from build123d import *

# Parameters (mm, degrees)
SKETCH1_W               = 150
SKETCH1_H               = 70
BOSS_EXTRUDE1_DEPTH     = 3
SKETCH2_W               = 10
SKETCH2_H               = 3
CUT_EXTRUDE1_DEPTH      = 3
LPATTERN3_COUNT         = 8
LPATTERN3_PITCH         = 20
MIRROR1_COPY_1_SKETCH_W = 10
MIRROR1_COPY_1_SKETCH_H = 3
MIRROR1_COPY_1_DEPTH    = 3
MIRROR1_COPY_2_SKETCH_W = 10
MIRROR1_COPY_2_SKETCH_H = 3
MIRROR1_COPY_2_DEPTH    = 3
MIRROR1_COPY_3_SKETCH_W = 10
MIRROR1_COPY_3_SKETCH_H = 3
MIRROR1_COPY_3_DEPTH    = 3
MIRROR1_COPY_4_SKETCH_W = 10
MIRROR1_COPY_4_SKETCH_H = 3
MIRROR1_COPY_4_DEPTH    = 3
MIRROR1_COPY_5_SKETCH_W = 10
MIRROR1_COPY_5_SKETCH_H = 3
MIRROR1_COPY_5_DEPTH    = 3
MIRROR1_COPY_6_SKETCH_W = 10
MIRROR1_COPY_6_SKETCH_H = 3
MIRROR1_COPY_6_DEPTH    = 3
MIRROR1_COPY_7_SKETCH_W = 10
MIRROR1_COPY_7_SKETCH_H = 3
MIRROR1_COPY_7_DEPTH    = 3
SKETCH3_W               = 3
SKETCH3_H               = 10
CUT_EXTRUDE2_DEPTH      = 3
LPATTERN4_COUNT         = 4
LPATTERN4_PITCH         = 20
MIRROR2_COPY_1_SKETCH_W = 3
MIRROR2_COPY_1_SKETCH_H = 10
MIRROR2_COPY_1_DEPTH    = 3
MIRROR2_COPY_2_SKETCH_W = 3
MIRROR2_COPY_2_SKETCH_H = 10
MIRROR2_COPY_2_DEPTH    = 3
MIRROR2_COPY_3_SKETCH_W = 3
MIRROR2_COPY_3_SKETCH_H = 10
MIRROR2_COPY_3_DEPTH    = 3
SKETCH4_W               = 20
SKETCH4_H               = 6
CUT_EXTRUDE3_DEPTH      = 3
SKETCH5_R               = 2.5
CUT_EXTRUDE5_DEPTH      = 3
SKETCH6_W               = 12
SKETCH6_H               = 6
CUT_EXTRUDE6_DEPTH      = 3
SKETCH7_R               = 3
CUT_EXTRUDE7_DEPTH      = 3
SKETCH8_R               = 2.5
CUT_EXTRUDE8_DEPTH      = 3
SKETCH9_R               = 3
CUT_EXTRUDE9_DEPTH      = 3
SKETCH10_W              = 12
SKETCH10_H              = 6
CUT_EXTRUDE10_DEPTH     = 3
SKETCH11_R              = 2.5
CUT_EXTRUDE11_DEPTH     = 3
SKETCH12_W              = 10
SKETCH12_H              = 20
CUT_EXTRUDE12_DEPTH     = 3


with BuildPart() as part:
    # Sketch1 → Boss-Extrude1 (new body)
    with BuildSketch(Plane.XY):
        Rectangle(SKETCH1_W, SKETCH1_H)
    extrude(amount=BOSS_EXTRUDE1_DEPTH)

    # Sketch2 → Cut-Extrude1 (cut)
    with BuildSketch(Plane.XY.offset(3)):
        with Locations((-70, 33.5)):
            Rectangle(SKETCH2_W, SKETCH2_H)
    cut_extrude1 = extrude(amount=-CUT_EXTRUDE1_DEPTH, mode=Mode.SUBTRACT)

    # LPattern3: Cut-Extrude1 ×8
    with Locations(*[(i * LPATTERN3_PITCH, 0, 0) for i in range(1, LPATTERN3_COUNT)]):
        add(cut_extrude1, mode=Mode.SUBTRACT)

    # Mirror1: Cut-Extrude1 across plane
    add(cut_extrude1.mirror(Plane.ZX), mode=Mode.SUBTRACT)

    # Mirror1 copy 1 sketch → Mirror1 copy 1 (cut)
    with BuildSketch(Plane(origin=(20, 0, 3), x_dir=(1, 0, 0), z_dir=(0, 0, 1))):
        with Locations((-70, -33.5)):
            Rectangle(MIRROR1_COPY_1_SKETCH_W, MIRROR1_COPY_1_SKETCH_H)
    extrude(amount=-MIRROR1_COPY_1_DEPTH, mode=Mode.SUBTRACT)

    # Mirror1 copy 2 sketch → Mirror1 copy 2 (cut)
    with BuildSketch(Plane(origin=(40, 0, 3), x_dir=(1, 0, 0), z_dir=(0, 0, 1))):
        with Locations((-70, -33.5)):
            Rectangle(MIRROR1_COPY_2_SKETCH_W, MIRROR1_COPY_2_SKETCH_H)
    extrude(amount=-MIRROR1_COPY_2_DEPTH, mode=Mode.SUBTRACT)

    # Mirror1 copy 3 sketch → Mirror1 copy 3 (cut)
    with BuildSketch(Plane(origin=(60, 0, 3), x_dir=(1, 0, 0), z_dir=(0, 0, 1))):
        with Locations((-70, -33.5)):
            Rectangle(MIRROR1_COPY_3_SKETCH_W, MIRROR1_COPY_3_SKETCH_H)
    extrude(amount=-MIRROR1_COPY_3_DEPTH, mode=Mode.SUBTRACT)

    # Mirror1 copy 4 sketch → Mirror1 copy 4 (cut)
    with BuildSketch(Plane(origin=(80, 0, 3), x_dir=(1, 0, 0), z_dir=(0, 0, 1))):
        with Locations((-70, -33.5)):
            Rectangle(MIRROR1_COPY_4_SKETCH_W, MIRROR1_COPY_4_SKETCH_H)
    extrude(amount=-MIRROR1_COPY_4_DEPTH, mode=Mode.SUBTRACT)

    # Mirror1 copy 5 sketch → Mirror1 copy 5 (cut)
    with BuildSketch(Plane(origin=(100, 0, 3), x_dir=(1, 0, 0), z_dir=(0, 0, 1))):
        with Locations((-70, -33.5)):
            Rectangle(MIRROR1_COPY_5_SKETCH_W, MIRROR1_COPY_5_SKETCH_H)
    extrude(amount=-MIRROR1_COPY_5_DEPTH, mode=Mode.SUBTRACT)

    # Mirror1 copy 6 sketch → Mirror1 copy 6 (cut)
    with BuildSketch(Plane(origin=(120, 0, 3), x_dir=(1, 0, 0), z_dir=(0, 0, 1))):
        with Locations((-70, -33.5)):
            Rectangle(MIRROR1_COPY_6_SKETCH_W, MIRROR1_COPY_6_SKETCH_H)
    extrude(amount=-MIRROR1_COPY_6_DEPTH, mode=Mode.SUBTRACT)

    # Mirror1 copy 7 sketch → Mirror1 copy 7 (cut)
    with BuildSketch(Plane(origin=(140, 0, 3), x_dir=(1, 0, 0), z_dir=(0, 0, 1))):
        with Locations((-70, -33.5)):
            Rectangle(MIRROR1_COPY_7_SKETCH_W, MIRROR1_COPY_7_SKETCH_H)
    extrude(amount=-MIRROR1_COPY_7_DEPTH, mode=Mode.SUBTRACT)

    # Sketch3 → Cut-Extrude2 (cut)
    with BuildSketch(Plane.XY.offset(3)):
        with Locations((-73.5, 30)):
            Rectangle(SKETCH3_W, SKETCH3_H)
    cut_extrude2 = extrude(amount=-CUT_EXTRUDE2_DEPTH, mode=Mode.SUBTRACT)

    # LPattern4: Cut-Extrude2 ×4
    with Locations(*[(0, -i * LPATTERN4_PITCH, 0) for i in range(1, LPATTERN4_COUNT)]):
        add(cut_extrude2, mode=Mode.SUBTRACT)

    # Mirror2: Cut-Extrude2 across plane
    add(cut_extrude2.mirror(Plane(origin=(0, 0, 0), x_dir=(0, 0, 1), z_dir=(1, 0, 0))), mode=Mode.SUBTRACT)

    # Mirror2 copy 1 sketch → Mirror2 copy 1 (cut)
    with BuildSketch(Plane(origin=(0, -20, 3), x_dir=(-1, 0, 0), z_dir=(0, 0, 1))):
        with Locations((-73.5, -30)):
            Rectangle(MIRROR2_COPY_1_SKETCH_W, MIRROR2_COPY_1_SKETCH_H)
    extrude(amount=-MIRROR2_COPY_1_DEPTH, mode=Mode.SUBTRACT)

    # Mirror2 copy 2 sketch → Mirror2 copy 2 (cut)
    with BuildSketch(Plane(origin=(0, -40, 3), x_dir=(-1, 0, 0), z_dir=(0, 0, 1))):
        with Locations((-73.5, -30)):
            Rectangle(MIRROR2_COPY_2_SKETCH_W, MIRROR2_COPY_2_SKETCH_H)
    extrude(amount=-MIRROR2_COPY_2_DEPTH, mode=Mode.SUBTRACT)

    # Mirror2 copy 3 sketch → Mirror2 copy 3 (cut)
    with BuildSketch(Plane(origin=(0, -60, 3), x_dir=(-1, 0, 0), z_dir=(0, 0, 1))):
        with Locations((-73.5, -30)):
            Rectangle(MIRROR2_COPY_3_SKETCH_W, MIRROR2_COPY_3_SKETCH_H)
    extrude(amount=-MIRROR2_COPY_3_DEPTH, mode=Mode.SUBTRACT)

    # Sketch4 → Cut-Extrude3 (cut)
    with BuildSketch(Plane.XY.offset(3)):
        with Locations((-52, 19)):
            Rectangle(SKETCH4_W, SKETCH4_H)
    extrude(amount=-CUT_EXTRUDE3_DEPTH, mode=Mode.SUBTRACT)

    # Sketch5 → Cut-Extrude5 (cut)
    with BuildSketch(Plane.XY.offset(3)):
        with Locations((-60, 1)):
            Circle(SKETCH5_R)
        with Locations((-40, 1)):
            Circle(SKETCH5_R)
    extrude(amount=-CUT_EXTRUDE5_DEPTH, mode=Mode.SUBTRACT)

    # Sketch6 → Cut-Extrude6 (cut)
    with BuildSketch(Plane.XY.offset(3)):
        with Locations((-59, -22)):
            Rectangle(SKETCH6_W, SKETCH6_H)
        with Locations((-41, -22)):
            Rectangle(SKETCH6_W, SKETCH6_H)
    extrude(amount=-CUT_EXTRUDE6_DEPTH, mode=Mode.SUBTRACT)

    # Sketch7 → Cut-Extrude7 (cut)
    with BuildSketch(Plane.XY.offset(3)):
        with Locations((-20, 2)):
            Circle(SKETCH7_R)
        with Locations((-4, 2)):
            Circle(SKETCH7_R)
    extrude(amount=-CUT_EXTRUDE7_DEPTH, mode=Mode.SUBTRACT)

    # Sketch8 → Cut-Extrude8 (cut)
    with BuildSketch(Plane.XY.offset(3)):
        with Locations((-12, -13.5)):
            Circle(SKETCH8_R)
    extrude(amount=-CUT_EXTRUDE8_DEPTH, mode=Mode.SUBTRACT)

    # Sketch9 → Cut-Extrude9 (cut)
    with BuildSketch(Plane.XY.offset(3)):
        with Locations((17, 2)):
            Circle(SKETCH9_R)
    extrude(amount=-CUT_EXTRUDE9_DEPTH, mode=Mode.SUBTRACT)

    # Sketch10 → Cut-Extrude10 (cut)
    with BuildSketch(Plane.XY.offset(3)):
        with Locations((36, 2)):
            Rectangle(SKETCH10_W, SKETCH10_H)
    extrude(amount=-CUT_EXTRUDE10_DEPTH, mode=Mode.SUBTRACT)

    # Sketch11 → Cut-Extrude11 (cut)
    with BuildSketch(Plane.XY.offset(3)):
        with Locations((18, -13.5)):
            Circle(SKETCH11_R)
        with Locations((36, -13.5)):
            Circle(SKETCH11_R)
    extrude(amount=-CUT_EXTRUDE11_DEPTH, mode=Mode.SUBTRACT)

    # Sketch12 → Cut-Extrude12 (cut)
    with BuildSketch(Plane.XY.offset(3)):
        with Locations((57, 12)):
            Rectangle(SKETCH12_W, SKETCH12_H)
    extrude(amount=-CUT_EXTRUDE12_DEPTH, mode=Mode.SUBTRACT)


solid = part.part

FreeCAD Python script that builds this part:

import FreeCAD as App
import Part
import Sketcher
from FreeCAD import Vector
Q = App.Units.Quantity


def add_polygon(sketch, points):
    """Adds a closed chain of lines whose ends are joined by coincident constraints."""
    first, n = sketch.GeometryCount, len(points)
    for a, b in zip(points, points[1:] + points[:1]):
        sketch.addGeometry(Part.LineSegment(App.Vector(*a, 0), App.Vector(*b, 0)), False)
    for i in range(n):
        sketch.addConstraint(Sketcher.Constraint("Coincident", first + i, 2, first + (i + 1) % n, 1))

doc = App.newDocument("Part")
body = doc.addObject("PartDesign::Body", "Body")

# Sketch on XY plane
sketch1 = doc.addObject("Sketcher::SketchObject", "Sketch")
body.addObject(sketch1)
sketch1.AttachmentSupport = (doc.XY_Plane, [""])
sketch1.MapMode = "FlatFace"
add_polygon(sketch1, [(-75, 35), (-75, -35), (75, -35), (75, 35)])  # lines 0-3
sketch1.addConstraint([
    Sketcher.Constraint("Vertical", 0),
    Sketcher.Constraint("Horizontal", 1),
    Sketcher.Constraint("Vertical", 2),
    Sketcher.Constraint("Horizontal", 3),
    Sketcher.Constraint("Symmetric", 0, 2, 2, 2, -1, 1),
    Sketcher.Constraint("DistanceX", 1, 1, 1, 2, Q("150 mm")),
    Sketcher.Constraint("DistanceY", 0, 2, 0, 1, Q("70 mm")),
])
pad1 = doc.addObject("PartDesign::Pad", "Pad")
body.addObject(pad1)
pad1.Profile = sketch1
pad1.Length = 3

# Sketch on XY plane
sketch2 = doc.addObject("Sketcher::SketchObject", "Sketch001")
body.addObject(sketch2)
sketch2.AttachmentSupport = (doc.XY_Plane, [""])
sketch2.MapMode = "FlatFace"
sketch2.AttachmentOffset = App.Placement(Vector(0, 0, 3), App.Rotation())
add_polygon(sketch2, [(-75, 35), (-75, 32), (-65, 32), (-65, 35)])  # lines 0-3
sketch2.addConstraint([
    Sketcher.Constraint("Vertical", 0),
    Sketcher.Constraint("Horizontal", 1),
    Sketcher.Constraint("Vertical", 2),
    Sketcher.Constraint("Horizontal", 3),
    Sketcher.Constraint("DistanceX", 1, 1, 1, 2, Q("10 mm")),
    Sketcher.Constraint("DistanceY", 0, 2, 0, 1, Q("3 mm")),
    Sketcher.Constraint("DistanceX", 0, 2, -1, 1, Q("75 mm")),
    Sketcher.Constraint("DistanceY", -1, 1, 0, 2, Q("32 mm")),
])
pocket1 = doc.addObject("PartDesign::Pocket", "Pocket")
body.addObject(pocket1)
pocket1.Profile = sketch2
pocket1.Length = 3
doc.recompute()

linearpattern = doc.addObject("PartDesign::LinearPattern", "LinearPattern")
body.addObject(linearpattern)
linearpattern.Originals = [pocket1]
linearpattern.Direction = (doc.X_Axis, [""])
linearpattern.Mode = "offset"
linearpattern.Offset = 20
linearpattern.Occurrences = 8
body.Tip = linearpattern
doc.recompute()

mirrored = doc.addObject("PartDesign::Mirrored", "Mirrored")
body.addObject(mirrored)
mirrored.Originals = [pocket1]
mirrored.MirrorPlane = (doc.XZ_Plane, [""])
body.Tip = mirrored

# Sketch on XY plane
sketch3 = doc.addObject("Sketcher::SketchObject", "Sketch002")
body.addObject(sketch3)
sketch3.AttachmentSupport = (doc.XY_Plane, [""])
sketch3.MapMode = "FlatFace"
sketch3.AttachmentOffset = App.Placement(Vector(0, 0, 3), App.Rotation())
add_polygon(sketch3, [(-55, -32), (-55, -35), (-45, -35), (-45, -32)])  # lines 0-3
sketch3.addConstraint([
    Sketcher.Constraint("Vertical", 0),
    Sketcher.Constraint("Horizontal", 1),
    Sketcher.Constraint("Vertical", 2),
    Sketcher.Constraint("Horizontal", 3),
    Sketcher.Constraint("DistanceX", 1, 1, 1, 2, Q("10 mm")),
    Sketcher.Constraint("DistanceY", 0, 2, 0, 1, Q("3 mm")),
    Sketcher.Constraint("DistanceX", 0, 2, -1, 1, Q("55 mm")),
    Sketcher.Constraint("DistanceY", 0, 2, -1, 1, Q("35 mm")),
])
pocket2 = doc.addObject("PartDesign::Pocket", "Pocket001")
body.addObject(pocket2)
pocket2.Profile = sketch3
pocket2.Length = 3

# Sketch on XY plane
sketch4 = doc.addObject("Sketcher::SketchObject", "Sketch003")
body.addObject(sketch4)
sketch4.AttachmentSupport = (doc.XY_Plane, [""])
sketch4.MapMode = "FlatFace"
sketch4.AttachmentOffset = App.Placement(Vector(0, 0, 3), App.Rotation())
add_polygon(sketch4, [(-35, -32), (-35, -35), (-25, -35), (-25, -32)])  # lines 0-3
sketch4.addConstraint([
    Sketcher.Constraint("Vertical", 0),
    Sketcher.Constraint("Horizontal", 1),
    Sketcher.Constraint("Vertical", 2),
    Sketcher.Constraint("Horizontal", 3),
    Sketcher.Constraint("DistanceX", 1, 1, 1, 2, Q("10 mm")),
    Sketcher.Constraint("DistanceY", 0, 2, 0, 1, Q("3 mm")),
    Sketcher.Constraint("DistanceX", 0, 2, -1, 1, Q("35 mm")),
    Sketcher.Constraint("DistanceY", 0, 2, -1, 1, Q("35 mm")),
])
pocket3 = doc.addObject("PartDesign::Pocket", "Pocket002")
body.addObject(pocket3)
pocket3.Profile = sketch4
pocket3.Length = 3

# Sketch on XY plane
sketch5 = doc.addObject("Sketcher::SketchObject", "Sketch004")
body.addObject(sketch5)
sketch5.AttachmentSupport = (doc.XY_Plane, [""])
sketch5.MapMode = "FlatFace"
sketch5.AttachmentOffset = App.Placement(Vector(0, 0, 3), App.Rotation())
add_polygon(sketch5, [(-15, -32), (-15, -35), (-5, -35), (-5, -32)])  # lines 0-3
sketch5.addConstraint([
    Sketcher.Constraint("Vertical", 0),
    Sketcher.Constraint("Horizontal", 1),
    Sketcher.Constraint("Vertical", 2),
    Sketcher.Constraint("Horizontal", 3),
    Sketcher.Constraint("DistanceX", 1, 1, 1, 2, Q("10 mm")),
    Sketcher.Constraint("DistanceY", 0, 2, 0, 1, Q("3 mm")),
    Sketcher.Constraint("DistanceX", 0, 2, -1, 1, Q("15 mm")),
    Sketcher.Constraint("DistanceY", 0, 2, -1, 1, Q("35 mm")),
])
pocket4 = doc.addObject("PartDesign::Pocket", "Pocket003")
body.addObject(pocket4)
pocket4.Profile = sketch5
pocket4.Length = 3

# Sketch on XY plane
sketch6 = doc.addObject("Sketcher::SketchObject", "Sketch005")
body.addObject(sketch6)
sketch6.AttachmentSupport = (doc.XY_Plane, [""])
sketch6.MapMode = "FlatFace"
sketch6.AttachmentOffset = App.Placement(Vector(0, 0, 3), App.Rotation())
add_polygon(sketch6, [(5, -32), (5, -35), (15, -35), (15, -32)])  # lines 0-3
sketch6.addConstraint([
    Sketcher.Constraint("Vertical", 0),
    Sketcher.Constraint("Horizontal", 1),
    Sketcher.Constraint("Vertical", 2),
    Sketcher.Constraint("Horizontal", 3),
    Sketcher.Constraint("DistanceX", 1, 1, 1, 2, Q("10 mm")),
    Sketcher.Constraint("DistanceY", 0, 2, 0, 1, Q("3 mm")),
    Sketcher.Constraint("DistanceX", -1, 1, 0, 2, Q("5 mm")),
    Sketcher.Constraint("DistanceY", 0, 2, -1, 1, Q("35 mm")),
])
pocket5 = doc.addObject("PartDesign::Pocket", "Pocket004")
body.addObject(pocket5)
pocket5.Profile = sketch6
pocket5.Length = 3

# Sketch on XY plane
sketch7 = doc.addObject("Sketcher::SketchObject", "Sketch006")
body.addObject(sketch7)
sketch7.AttachmentSupport = (doc.XY_Plane, [""])
sketch7.MapMode = "FlatFace"
sketch7.AttachmentOffset = App.Placement(Vector(0, 0, 3), App.Rotation())
add_polygon(sketch7, [(25, -32), (25, -35), (35, -35), (35, -32)])  # lines 0-3
sketch7.addConstraint([
    Sketcher.Constraint("Vertical", 0),
    Sketcher.Constraint("Horizontal", 1),
    Sketcher.Constraint("Vertical", 2),
    Sketcher.Constraint("Horizontal", 3),
    Sketcher.Constraint("DistanceX", 1, 1, 1, 2, Q("10 mm")),
    Sketcher.Constraint("DistanceY", 0, 2, 0, 1, Q("3 mm")),
    Sketcher.Constraint("DistanceX", -1, 1, 0, 2, Q("25 mm")),
    Sketcher.Constraint("DistanceY", 0, 2, -1, 1, Q("35 mm")),
])
pocket6 = doc.addObject("PartDesign::Pocket", "Pocket005")
body.addObject(pocket6)
pocket6.Profile = sketch7
pocket6.Length = 3

# Sketch on XY plane
sketch8 = doc.addObject("Sketcher::SketchObject", "Sketch007")
body.addObject(sketch8)
sketch8.AttachmentSupport = (doc.XY_Plane, [""])
sketch8.MapMode = "FlatFace"
sketch8.AttachmentOffset = App.Placement(Vector(0, 0, 3), App.Rotation())
add_polygon(sketch8, [(45, -32), (45, -35), (55, -35), (55, -32)])  # lines 0-3
sketch8.addConstraint([
    Sketcher.Constraint("Vertical", 0),
    Sketcher.Constraint("Horizontal", 1),
    Sketcher.Constraint("Vertical", 2),
    Sketcher.Constraint("Horizontal", 3),
    Sketcher.Constraint("DistanceX", 1, 1, 1, 2, Q("10 mm")),
    Sketcher.Constraint("DistanceY", 0, 2, 0, 1, Q("3 mm")),
    Sketcher.Constraint("DistanceX", -1, 1, 0, 2, Q("45 mm")),
    Sketcher.Constraint("DistanceY", 0, 2, -1, 1, Q("35 mm")),
])
pocket7 = doc.addObject("PartDesign::Pocket", "Pocket006")
body.addObject(pocket7)
pocket7.Profile = sketch8
pocket7.Length = 3

# Sketch on XY plane
sketch9 = doc.addObject("Sketcher::SketchObject", "Sketch008")
body.addObject(sketch9)
sketch9.AttachmentSupport = (doc.XY_Plane, [""])
sketch9.MapMode = "FlatFace"
sketch9.AttachmentOffset = App.Placement(Vector(0, 0, 3), App.Rotation())
add_polygon(sketch9, [(65, -32), (65, -35), (75, -35), (75, -32)])  # lines 0-3
sketch9.addConstraint([
    Sketcher.Constraint("Vertical", 0),
    Sketcher.Constraint("Horizontal", 1),
    Sketcher.Constraint("Vertical", 2),
    Sketcher.Constraint("Horizontal", 3),
    Sketcher.Constraint("DistanceX", 1, 1, 1, 2, Q("10 mm")),
    Sketcher.Constraint("DistanceY", 0, 2, 0, 1, Q("3 mm")),
    Sketcher.Constraint("DistanceX", -1, 1, 0, 2, Q("65 mm")),
    Sketcher.Constraint("DistanceY", 0, 2, -1, 1, Q("35 mm")),
])
pocket8 = doc.addObject("PartDesign::Pocket", "Pocket007")
body.addObject(pocket8)
pocket8.Profile = sketch9
pocket8.Length = 3

# Sketch on XY plane
sketch10 = doc.addObject("Sketcher::SketchObject", "Sketch009")
body.addObject(sketch10)
sketch10.AttachmentSupport = (doc.XY_Plane, [""])
sketch10.MapMode = "FlatFace"
sketch10.AttachmentOffset = App.Placement(Vector(0, 0, 3), App.Rotation())
add_polygon(sketch10, [(-75, 35), (-75, 25), (-72, 25), (-72, 35)])  # lines 0-3
sketch10.addConstraint([
    Sketcher.Constraint("Vertical", 0),
    Sketcher.Constraint("Horizontal", 1),
    Sketcher.Constraint("Vertical", 2),
    Sketcher.Constraint("Horizontal", 3),
    Sketcher.Constraint("DistanceX", 1, 1, 1, 2, Q("3 mm")),
    Sketcher.Constraint("DistanceY", 0, 2, 0, 1, Q("10 mm")),
    Sketcher.Constraint("DistanceX", 0, 2, -1, 1, Q("75 mm")),
    Sketcher.Constraint("DistanceY", -1, 1, 0, 2, Q("25 mm")),
])
pocket9 = doc.addObject("PartDesign::Pocket", "Pocket008")
body.addObject(pocket9)
pocket9.Profile = sketch10
pocket9.Length = 3
doc.recompute()

linearpattern2 = doc.addObject("PartDesign::LinearPattern", "LinearPattern001")
body.addObject(linearpattern2)
linearpattern2.Originals = [pocket9]
linearpattern2.Direction = (doc.Y_Axis, [""])
linearpattern2.Mode = "offset"
linearpattern2.Offset = 20
linearpattern2.Occurrences = 4
linearpattern2.Reversed = True
body.Tip = linearpattern2
doc.recompute()

mirrored2 = doc.addObject("PartDesign::Mirrored", "Mirrored001")
body.addObject(mirrored2)
mirrored2.Originals = [pocket9]
mirrored2.MirrorPlane = (doc.YZ_Plane, [""])
body.Tip = mirrored2

# Sketch on XY plane
sketch11 = doc.addObject("Sketcher::SketchObject", "Sketch010")
body.addObject(sketch11)
sketch11.AttachmentSupport = (doc.XY_Plane, [""])
sketch11.MapMode = "FlatFace"
sketch11.AttachmentOffset = App.Placement(Vector(0, 0, 3), App.Rotation())
add_polygon(sketch11, [(75, 5), (75, 15), (72, 15), (72, 5)])  # lines 0-3
sketch11.addConstraint([
    Sketcher.Constraint("Vertical", 0),
    Sketcher.Constraint("Horizontal", 1),
    Sketcher.Constraint("Vertical", 2),
    Sketcher.Constraint("Horizontal", 3),
    Sketcher.Constraint("DistanceX", 1, 2, 1, 1, Q("3 mm")),
    Sketcher.Constraint("DistanceY", 0, 1, 0, 2, Q("10 mm")),
    Sketcher.Constraint("DistanceX", -1, 1, 0, 2, Q("75 mm")),
    Sketcher.Constraint("DistanceY", -1, 1, 0, 2, Q("15 mm")),
])
pocket10 = doc.addObject("PartDesign::Pocket", "Pocket009")
body.addObject(pocket10)
pocket10.Profile = sketch11
pocket10.Length = 3

# Sketch on XY plane
sketch12 = doc.addObject("Sketcher::SketchObject", "Sketch011")
body.addObject(sketch12)
sketch12.AttachmentSupport = (doc.XY_Plane, [""])
sketch12.MapMode = "FlatFace"
sketch12.AttachmentOffset = App.Placement(Vector(0, 0, 3), App.Rotation())
add_polygon(sketch12, [(75, -15), (75, -5), (72, -5), (72, -15)])  # lines 0-3
sketch12.addConstraint([
    Sketcher.Constraint("Vertical", 0),
    Sketcher.Constraint("Horizontal", 1),
    Sketcher.Constraint("Vertical", 2),
    Sketcher.Constraint("Horizontal", 3),
    Sketcher.Constraint("DistanceX", 1, 2, 1, 1, Q("3 mm")),
    Sketcher.Constraint("DistanceY", 0, 1, 0, 2, Q("10 mm")),
    Sketcher.Constraint("DistanceX", -1, 1, 0, 2, Q("75 mm")),
    Sketcher.Constraint("DistanceY", 0, 2, -1, 1, Q("5 mm")),
])
pocket11 = doc.addObject("PartDesign::Pocket", "Pocket010")
body.addObject(pocket11)
pocket11.Profile = sketch12
pocket11.Length = 3

# Sketch on XY plane
sketch13 = doc.addObject("Sketcher::SketchObject", "Sketch012")
body.addObject(sketch13)
sketch13.AttachmentSupport = (doc.XY_Plane, [""])
sketch13.MapMode = "FlatFace"
sketch13.AttachmentOffset = App.Placement(Vector(0, 0, 3), App.Rotation())
add_polygon(sketch13, [(75, -35), (75, -25), (72, -25), (72, -35)])  # lines 0-3
sketch13.addConstraint([
    Sketcher.Constraint("Vertical", 0),
    Sketcher.Constraint("Horizontal", 1),
    Sketcher.Constraint("Vertical", 2),
    Sketcher.Constraint("Horizontal", 3),
    Sketcher.Constraint("DistanceX", 1, 2, 1, 1, Q("3 mm")),
    Sketcher.Constraint("DistanceY", 0, 1, 0, 2, Q("10 mm")),
    Sketcher.Constraint("DistanceX", -1, 1, 0, 2, Q("75 mm")),
    Sketcher.Constraint("DistanceY", 0, 2, -1, 1, Q("25 mm")),
])
pocket12 = doc.addObject("PartDesign::Pocket", "Pocket011")
body.addObject(pocket12)
pocket12.Profile = sketch13
pocket12.Length = 3

# Sketch on XY plane
sketch14 = doc.addObject("Sketcher::SketchObject", "Sketch013")
body.addObject(sketch14)
sketch14.AttachmentSupport = (doc.XY_Plane, [""])
sketch14.MapMode = "FlatFace"
sketch14.AttachmentOffset = App.Placement(Vector(0, 0, 3), App.Rotation())
add_polygon(sketch14, [(-62, 22), (-62, 16), (-42, 16), (-42, 22)])  # lines 0-3
sketch14.addConstraint([
    Sketcher.Constraint("Vertical", 0),
    Sketcher.Constraint("Horizontal", 1),
    Sketcher.Constraint("Vertical", 2),
    Sketcher.Constraint("Horizontal", 3),
    Sketcher.Constraint("DistanceX", 1, 1, 1, 2, Q("20 mm")),
    Sketcher.Constraint("DistanceY", 0, 2, 0, 1, Q("6 mm")),
    Sketcher.Constraint("DistanceX", 0, 2, -1, 1, Q("62 mm")),
    Sketcher.Constraint("DistanceY", -1, 1, 0, 2, Q("16 mm")),
])
pocket13 = doc.addObject("PartDesign::Pocket", "Pocket012")
body.addObject(pocket13)
pocket13.Profile = sketch14
pocket13.Length = 3

# Sketch on XY plane
sketch15 = doc.addObject("Sketcher::SketchObject", "Sketch014")
body.addObject(sketch15)
sketch15.AttachmentSupport = (doc.XY_Plane, [""])
sketch15.MapMode = "FlatFace"
sketch15.AttachmentOffset = App.Placement(Vector(0, 0, 3), App.Rotation())
sketch15.addGeometry([
    Part.Circle(Vector(-60, 1, 0), Vector(0, 0, 1), 2.5),
    Part.Circle(Vector(-40, 1, 0), Vector(0, 0, 1), 2.5),
], False)
sketch15.addConstraint([
    Sketcher.Constraint("Equal", 0, 1),
    Sketcher.Constraint("Horizontal", 0, 3, 1, 3),
    Sketcher.Constraint("Diameter", 0, Q("5 mm")),
    Sketcher.Constraint("DistanceX", 0, 3, -1, 1, Q("60 mm")),
    Sketcher.Constraint("DistanceY", -1, 1, 0, 3, Q("1 mm")),
    Sketcher.Constraint("DistanceX", 1, 3, -1, 1, Q("40 mm")),
])
pocket14 = doc.addObject("PartDesign::Pocket", "Pocket013")
body.addObject(pocket14)
pocket14.Profile = sketch15
pocket14.Length = 3

# Sketch on XY plane
sketch16 = doc.addObject("Sketcher::SketchObject", "Sketch015")
body.addObject(sketch16)
sketch16.AttachmentSupport = (doc.XY_Plane, [""])
sketch16.MapMode = "FlatFace"
sketch16.AttachmentOffset = App.Placement(Vector(0, 0, 3), App.Rotation())
add_polygon(sketch16, [(-65, -19), (-65, -25), (-53, -25), (-53, -19)])  # lines 0-3
add_polygon(sketch16, [(-47, -19), (-47, -25), (-35, -25), (-35, -19)])  # lines 4-7
sketch16.addConstraint([
    Sketcher.Constraint("Vertical", 0),
    Sketcher.Constraint("Horizontal", 1),
    Sketcher.Constraint("Vertical", 2),
    Sketcher.Constraint("Horizontal", 3),
    Sketcher.Constraint("Vertical", 4),
    Sketcher.Constraint("Horizontal", 5),
    Sketcher.Constraint("Vertical", 6),
    Sketcher.Constraint("Horizontal", 7),
    Sketcher.Constraint("Horizontal", 1, 2, 4, 2),
    Sketcher.Constraint("Horizontal", 3, 2, 6, 2),
    Sketcher.Constraint("Equal", 3, 5),
    Sketcher.Constraint("DistanceX", 1, 1, 1, 2, Q("12 mm")),
    Sketcher.Constraint("DistanceY", 0, 2, 0, 1, Q("6 mm")),
    Sketcher.Constraint("DistanceX", 0, 2, -1, 1, Q("65 mm")),
    Sketcher.Constraint("DistanceY", 0, 2, -1, 1, Q("25 mm")),
    Sketcher.Constraint("DistanceX", 4, 2, -1, 1, Q("47 mm")),
])
pocket15 = doc.addObject("PartDesign::Pocket", "Pocket014")
body.addObject(pocket15)
pocket15.Profile = sketch16
pocket15.Length = 3

# Sketch on XY plane
sketch17 = doc.addObject("Sketcher::SketchObject", "Sketch016")
body.addObject(sketch17)
sketch17.AttachmentSupport = (doc.XY_Plane, [""])
sketch17.MapMode = "FlatFace"
sketch17.AttachmentOffset = App.Placement(Vector(0, 0, 3), App.Rotation())
sketch17.addGeometry([
    Part.Circle(Vector(-20, 2, 0), Vector(0, 0, 1), 3),
    Part.Circle(Vector(-4, 2, 0), Vector(0, 0, 1), 3),
], False)
sketch17.addConstraint([
    Sketcher.Constraint("Equal", 0, 1),
    Sketcher.Constraint("Horizontal", 0, 3, 1, 3),
    Sketcher.Constraint("Diameter", 0, Q("6 mm")),
    Sketcher.Constraint("DistanceX", 0, 3, -1, 1, Q("20 mm")),
    Sketcher.Constraint("DistanceY", -1, 1, 0, 3, Q("2 mm")),
    Sketcher.Constraint("DistanceX", 1, 3, -1, 1, Q("4 mm")),
])
pocket16 = doc.addObject("PartDesign::Pocket", "Pocket015")
body.addObject(pocket16)
pocket16.Profile = sketch17
pocket16.Length = 3

# Sketch on XY plane
sketch18 = doc.addObject("Sketcher::SketchObject", "Sketch017")
body.addObject(sketch18)
sketch18.AttachmentSupport = (doc.XY_Plane, [""])
sketch18.MapMode = "FlatFace"
sketch18.AttachmentOffset = App.Placement(Vector(0, 0, 3), App.Rotation())
sketch18.addGeometry(Part.Circle(Vector(-12, -13.5, 0), Vector(0, 0, 1), 2.5), False)
sketch18.addConstraint([
    Sketcher.Constraint("Diameter", 0, Q("5 mm")),
    Sketcher.Constraint("DistanceX", 0, 3, -1, 1, Q("12 mm")),
    Sketcher.Constraint("DistanceY", 0, 3, -1, 1, Q("13.5 mm")),
])
pocket17 = doc.addObject("PartDesign::Pocket", "Pocket016")
body.addObject(pocket17)
pocket17.Profile = sketch18
pocket17.Length = 3

# Sketch on XY plane
sketch19 = doc.addObject("Sketcher::SketchObject", "Sketch018")
body.addObject(sketch19)
sketch19.AttachmentSupport = (doc.XY_Plane, [""])
sketch19.MapMode = "FlatFace"
sketch19.AttachmentOffset = App.Placement(Vector(0, 0, 3), App.Rotation())
sketch19.addGeometry(Part.Circle(Vector(17, 2, 0), Vector(0, 0, 1), 3), False)
sketch19.addConstraint([
    Sketcher.Constraint("Diameter", 0, Q("6 mm")),
    Sketcher.Constraint("DistanceX", -1, 1, 0, 3, Q("17 mm")),
    Sketcher.Constraint("DistanceY", -1, 1, 0, 3, Q("2 mm")),
])
pocket18 = doc.addObject("PartDesign::Pocket", "Pocket017")
body.addObject(pocket18)
pocket18.Profile = sketch19
pocket18.Length = 3

# Sketch on XY plane
sketch20 = doc.addObject("Sketcher::SketchObject", "Sketch019")
body.addObject(sketch20)
sketch20.AttachmentSupport = (doc.XY_Plane, [""])
sketch20.MapMode = "FlatFace"
sketch20.AttachmentOffset = App.Placement(Vector(0, 0, 3), App.Rotation())
add_polygon(sketch20, [(30, 5), (30, -1), (42, -1), (42, 5)])  # lines 0-3
sketch20.addConstraint([
    Sketcher.Constraint("Vertical", 0),
    Sketcher.Constraint("Horizontal", 1),
    Sketcher.Constraint("Vertical", 2),
    Sketcher.Constraint("Horizontal", 3),
    Sketcher.Constraint("DistanceX", 1, 1, 1, 2, Q("12 mm")),
    Sketcher.Constraint("DistanceY", 0, 2, 0, 1, Q("6 mm")),
    Sketcher.Constraint("DistanceX", -1, 1, 0, 2, Q("30 mm")),
    Sketcher.Constraint("DistanceY", 0, 2, -1, 1, Q("1 mm")),
])
pocket19 = doc.addObject("PartDesign::Pocket", "Pocket018")
body.addObject(pocket19)
pocket19.Profile = sketch20
pocket19.Length = 3

# Sketch on XY plane
sketch21 = doc.addObject("Sketcher::SketchObject", "Sketch020")
body.addObject(sketch21)
sketch21.AttachmentSupport = (doc.XY_Plane, [""])
sketch21.MapMode = "FlatFace"
sketch21.AttachmentOffset = App.Placement(Vector(0, 0, 3), App.Rotation())
sketch21.addGeometry([
    Part.Circle(Vector(18, -13.5, 0), Vector(0, 0, 1), 2.5),
    Part.Circle(Vector(36, -13.5, 0), Vector(0, 0, 1), 2.5),
], False)
sketch21.addConstraint([
    Sketcher.Constraint("Equal", 0, 1),
    Sketcher.Constraint("Horizontal", 0, 3, 1, 3),
    Sketcher.Constraint("Diameter", 0, Q("5 mm")),
    Sketcher.Constraint("DistanceX", -1, 1, 0, 3, Q("18 mm")),
    Sketcher.Constraint("DistanceX", -1, 1, 1, 3, Q("36 mm")),
    Sketcher.Constraint("DistanceY", 0, 3, -1, 1, Q("13.5 mm")),
])
pocket20 = doc.addObject("PartDesign::Pocket", "Pocket019")
body.addObject(pocket20)
pocket20.Profile = sketch21
pocket20.Length = 3

# Sketch on XY plane
sketch22 = doc.addObject("Sketcher::SketchObject", "Sketch021")
body.addObject(sketch22)
sketch22.AttachmentSupport = (doc.XY_Plane, [""])
sketch22.MapMode = "FlatFace"
sketch22.AttachmentOffset = App.Placement(Vector(0, 0, 3), App.Rotation())
add_polygon(sketch22, [(52, 22), (52, 2), (62, 2), (62, 22)])  # lines 0-3
sketch22.addConstraint([
    Sketcher.Constraint("Vertical", 0),
    Sketcher.Constraint("Horizontal", 1),
    Sketcher.Constraint("Vertical", 2),
    Sketcher.Constraint("Horizontal", 3),
    Sketcher.Constraint("DistanceX", 1, 1, 1, 2, Q("10 mm")),
    Sketcher.Constraint("DistanceY", 0, 2, 0, 1, Q("20 mm")),
    Sketcher.Constraint("DistanceX", -1, 1, 0, 2, Q("52 mm")),
    Sketcher.Constraint("DistanceY", -1, 1, 0, 2, Q("2 mm")),
])
pocket21 = doc.addObject("PartDesign::Pocket", "Pocket020")
body.addObject(pocket21)
pocket21.Profile = sketch22
pocket21.Length = 3

doc.recompute()
